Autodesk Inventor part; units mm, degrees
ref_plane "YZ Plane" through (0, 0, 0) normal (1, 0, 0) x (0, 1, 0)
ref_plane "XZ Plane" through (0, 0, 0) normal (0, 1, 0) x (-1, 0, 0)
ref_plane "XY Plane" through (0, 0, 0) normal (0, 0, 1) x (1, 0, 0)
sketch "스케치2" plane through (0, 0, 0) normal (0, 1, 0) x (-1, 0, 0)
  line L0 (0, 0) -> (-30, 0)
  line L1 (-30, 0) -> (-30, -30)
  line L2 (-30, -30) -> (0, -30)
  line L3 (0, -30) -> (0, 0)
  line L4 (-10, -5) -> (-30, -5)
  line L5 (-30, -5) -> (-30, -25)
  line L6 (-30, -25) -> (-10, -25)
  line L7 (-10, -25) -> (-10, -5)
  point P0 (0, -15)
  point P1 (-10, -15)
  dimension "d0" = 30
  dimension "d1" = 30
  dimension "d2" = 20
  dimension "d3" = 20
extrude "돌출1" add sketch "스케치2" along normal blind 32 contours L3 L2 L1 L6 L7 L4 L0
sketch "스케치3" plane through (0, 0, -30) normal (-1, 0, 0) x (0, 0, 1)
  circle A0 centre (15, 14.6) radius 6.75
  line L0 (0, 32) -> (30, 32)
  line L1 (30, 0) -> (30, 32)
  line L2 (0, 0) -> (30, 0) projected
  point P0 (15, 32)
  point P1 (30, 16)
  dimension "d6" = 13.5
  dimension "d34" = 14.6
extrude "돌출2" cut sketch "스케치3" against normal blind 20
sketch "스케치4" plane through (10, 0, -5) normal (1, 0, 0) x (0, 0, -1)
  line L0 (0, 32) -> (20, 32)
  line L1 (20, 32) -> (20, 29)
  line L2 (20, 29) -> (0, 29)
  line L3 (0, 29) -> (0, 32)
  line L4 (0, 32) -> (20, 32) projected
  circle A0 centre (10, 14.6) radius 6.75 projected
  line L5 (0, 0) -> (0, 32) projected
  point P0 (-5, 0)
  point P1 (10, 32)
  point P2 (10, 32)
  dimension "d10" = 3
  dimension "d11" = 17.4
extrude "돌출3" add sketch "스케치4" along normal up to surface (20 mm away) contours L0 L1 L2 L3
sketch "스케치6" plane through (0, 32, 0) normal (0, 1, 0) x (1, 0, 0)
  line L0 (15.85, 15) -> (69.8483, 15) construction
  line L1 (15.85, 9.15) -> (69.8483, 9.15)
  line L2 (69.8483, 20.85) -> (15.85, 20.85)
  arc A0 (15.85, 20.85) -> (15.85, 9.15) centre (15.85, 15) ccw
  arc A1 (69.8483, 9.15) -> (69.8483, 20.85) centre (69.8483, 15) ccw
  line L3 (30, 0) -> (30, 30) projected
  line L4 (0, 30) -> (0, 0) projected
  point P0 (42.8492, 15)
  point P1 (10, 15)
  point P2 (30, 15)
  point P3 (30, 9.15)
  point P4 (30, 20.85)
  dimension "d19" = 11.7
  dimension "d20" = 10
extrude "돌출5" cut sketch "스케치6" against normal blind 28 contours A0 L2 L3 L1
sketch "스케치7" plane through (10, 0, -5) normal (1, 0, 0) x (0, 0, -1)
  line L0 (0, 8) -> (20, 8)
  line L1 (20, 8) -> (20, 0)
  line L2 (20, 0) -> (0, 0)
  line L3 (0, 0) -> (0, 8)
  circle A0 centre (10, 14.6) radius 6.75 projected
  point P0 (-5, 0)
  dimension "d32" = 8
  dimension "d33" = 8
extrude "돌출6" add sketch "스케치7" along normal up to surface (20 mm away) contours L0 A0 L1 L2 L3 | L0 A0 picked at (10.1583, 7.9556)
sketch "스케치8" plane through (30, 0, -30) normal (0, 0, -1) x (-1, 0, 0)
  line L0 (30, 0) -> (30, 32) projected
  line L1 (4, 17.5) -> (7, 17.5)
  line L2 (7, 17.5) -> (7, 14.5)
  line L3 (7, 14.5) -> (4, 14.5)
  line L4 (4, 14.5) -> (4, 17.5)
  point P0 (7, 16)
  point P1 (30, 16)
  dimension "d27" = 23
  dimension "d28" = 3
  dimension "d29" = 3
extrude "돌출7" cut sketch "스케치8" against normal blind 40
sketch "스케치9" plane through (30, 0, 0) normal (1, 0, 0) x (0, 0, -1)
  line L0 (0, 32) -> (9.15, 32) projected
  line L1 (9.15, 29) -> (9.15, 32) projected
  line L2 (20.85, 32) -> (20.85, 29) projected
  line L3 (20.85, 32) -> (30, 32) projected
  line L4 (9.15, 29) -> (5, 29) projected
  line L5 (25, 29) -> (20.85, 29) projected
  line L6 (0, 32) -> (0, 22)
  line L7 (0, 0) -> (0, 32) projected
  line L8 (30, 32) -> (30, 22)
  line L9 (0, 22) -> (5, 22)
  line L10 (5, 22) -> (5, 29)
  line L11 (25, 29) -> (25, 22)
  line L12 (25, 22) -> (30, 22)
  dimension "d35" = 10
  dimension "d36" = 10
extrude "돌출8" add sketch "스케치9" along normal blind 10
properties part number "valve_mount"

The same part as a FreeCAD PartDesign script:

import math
import FreeCAD as App
import Part
import Sketcher

V = App.Vector


def add_polygon(sketch, points):
    """Adds a closed chain of lines whose ends are joined by coincident constraints."""
    first, n = sketch.GeometryCount, len(points)
    for a, b in zip(points, points[1:] + points[:1]):
        sketch.addGeometry(Part.LineSegment(App.Vector(*a, 0), App.Vector(*b, 0)), False)
    for i in range(n):
        sketch.addConstraint(Sketcher.Constraint("Coincident", first + i, 2, first + (i + 1) % n, 1))

doc = App.newDocument("Part")
body = doc.addObject("PartDesign::Body", "Body")

sketch1 = doc.addObject("Sketcher::SketchObject", "Sketch")
body.addObject(sketch1)
sketch1.AttachmentSupport = (doc.XZ_Plane, [""])
sketch1.MapMode = "FlatFace"
add_polygon(sketch1, [(0, -30), (0, 0), (30, 0), (30, -5), (10, -5), (10, -25), (30, -25), (30, -30)])
sketch1.addConstraint(Sketcher.Constraint("Vertical", 0))
sketch1.addConstraint(Sketcher.Constraint("Horizontal", 1))
sketch1.addConstraint(Sketcher.Constraint("Vertical", 2))
sketch1.addConstraint(Sketcher.Constraint("Horizontal", 3))
sketch1.addConstraint(Sketcher.Constraint("Vertical", 4))
sketch1.addConstraint(Sketcher.Constraint("Horizontal", 5))
sketch1.addConstraint(Sketcher.Constraint("Vertical", 6))
sketch1.addConstraint(Sketcher.Constraint("Horizontal", 7))
sketch1.addConstraint(Sketcher.Constraint("Coincident", 0, 2, -1, 1))
sketch1.addConstraint(Sketcher.Constraint("Vertical", 2, 2, 5, 2))
sketch1.addConstraint(Sketcher.Constraint("Equal", 7, 0))
sketch1.addConstraint(Sketcher.Constraint("Equal", 5, 4))
sketch1.addConstraint(Sketcher.Constraint("Equal", 2, 6))
sketch1.addConstraint(Sketcher.Constraint("DistanceX", 1, 1, 1, 2, 30.0))
sketch1.addConstraint(Sketcher.Constraint("DistanceX", 3, 2, 3, 1, 20.0))
pad1 = doc.addObject("PartDesign::Pad", "Pad")
body.addObject(pad1)
pad1.Profile = sketch1
pad1.Length = 32
pad1.Reversed = True

sketch2 = doc.addObject("Sketcher::SketchObject", "Sketch001")
body.addObject(sketch2)
sketch2.AttachmentSupport = (doc.YZ_Plane, [""])
sketch2.MapMode = "FlatFace"
sketch2.addGeometry(Part.Circle(V(15, -15, 0), V(0, 0, 1), 7), False)
sketch2.addConstraint(Sketcher.Constraint("Diameter", 0, 13.5))
sketch2.addConstraint(Sketcher.Constraint("DistanceX", -1, 1, 0, 3, 14.6))
sketch2.addConstraint(Sketcher.Constraint("DistanceY", 0, 3, -1, 1, 15.0))
pocket1 = doc.addObject("PartDesign::Pocket", "Pocket")
body.addObject(pocket1)
pocket1.Profile = sketch2
pocket1.Length = 20
pocket1.Reversed = True

sketch3 = doc.addObject("Sketcher::SketchObject", "Sketch002")
body.addObject(sketch3)
sketch3.AttachmentSupport = (doc.YZ_Plane, [""])
sketch3.MapMode = "FlatFace"
sketch3.AttachmentOffset = App.Placement(V(0, 0, 10), App.Rotation())
add_polygon(sketch3, [(32, -25), (32, -5), (29, -5), (29, -25)])
sketch3.addConstraint(Sketcher.Constraint("Vertical", 0))
sketch3.addConstraint(Sketcher.Constraint("Horizontal", 1))
sketch3.addConstraint(Sketcher.Constraint("Vertical", 2))
sketch3.addConstraint(Sketcher.Constraint("Horizontal", 3))
sketch3.addConstraint(Sketcher.Constraint("DistanceX", 1, 2, 1, 1, 3.0))
sketch3.addConstraint(Sketcher.Constraint("DistanceY", 0, 1, 0, 2, 20.0))
sketch3.addConstraint(Sketcher.Constraint("DistanceX", -1, 1, 0, 2, 32.0))
sketch3.addConstraint(Sketcher.Constraint("DistanceY", 0, 2, -1, 1, 5.0))
pad2 = doc.addObject("PartDesign::Pad", "Pad001")
body.addObject(pad2)
pad2.Profile = sketch3
pad2.Length = 20

sketch4 = doc.addObject("Sketcher::SketchObject", "Sketch003")
body.addObject(sketch4)
sketch4.AttachmentSupport = (doc.XZ_Plane, [""])
sketch4.MapMode = "FlatFace"
sketch4.AttachmentOffset = App.Placement(V(0, 0, -32), App.Rotation())
sketch4.addGeometry(Part.ArcOfCircle(Part.Circle(V(16, -15, 0), V(0, 0, 1), 6), math.radians(90), math.radians(270)), False)
sketch4.addGeometry(Part.LineSegment(V(16, -9, 0), V(30, -9, 0)), False)
sketch4.addGeometry(Part.LineSegment(V(30, -9, 0), V(30, -21, 0)), False)
sketch4.addGeometry(Part.LineSegment(V(30, -21, 0), V(16, -21, 0)), False)
sketch4.addConstraint(Sketcher.Constraint("Tangent", 0, 1, 1, 1))
sketch4.addConstraint(Sketcher.Constraint("Coincident", 1, 2, 2, 1))
sketch4.addConstraint(Sketcher.Constraint("Coincident", 2, 2, 3, 1))
sketch4.addConstraint(Sketcher.Constraint("Tangent", 3, 2, 0, 2))
sketch4.addConstraint(Sketcher.Constraint("Horizontal", 1))
sketch4.addConstraint(Sketcher.Constraint("Vertical", 2))
sketch4.addConstraint(Sketcher.Constraint("Horizontal", 3))
sketch4.addConstraint(Sketcher.Constraint("Radius", 0, 5.85))
sketch4.addConstraint(Sketcher.Constraint("DistanceY", 0, 3, -1, 1, 15.0))
sketch4.addConstraint(Sketcher.Constraint("DistanceX", -1, 1, 1, 2, 30.0))
sketch4.addConstraint(Sketcher.Constraint("DistanceX", 1, 1, 1, 2, 14.15))
pocket2 = doc.addObject("PartDesign::Pocket", "Pocket001")
body.addObject(pocket2)
pocket2.Profile = sketch4
pocket2.Length = 28
pocket2.Reversed = True

sketch5 = doc.addObject("Sketcher::SketchObject", "Sketch004")
body.addObject(sketch5)
sketch5.AttachmentSupport = (doc.YZ_Plane, [""])
sketch5.MapMode = "FlatFace"
sketch5.AttachmentOffset = App.Placement(V(0, 0, 10), App.Rotation())
add_polygon(sketch5, [(8, -5), (0, -5), (0, -25), (8, -25)])
sketch5.addConstraint(Sketcher.Constraint("Horizontal", 0))
sketch5.addConstraint(Sketcher.Constraint("Vertical", 1))
sketch5.addConstraint(Sketcher.Constraint("Horizontal", 2))
sketch5.addConstraint(Sketcher.Constraint("Vertical", 3))
sketch5.addConstraint(Sketcher.Constraint("PointOnObject", 0, 2, -2))
sketch5.addConstraint(Sketcher.Constraint("DistanceX", 0, 2, 0, 1, 8.0))
sketch5.addConstraint(Sketcher.Constraint("DistanceY", 1, 2, 1, 1, 20.0))
sketch5.addConstraint(Sketcher.Constraint("DistanceY", 0, 2, -1, 1, 5.0))
pad3 = doc.addObject("PartDesign::Pad", "Pad002")
body.addObject(pad3)
pad3.Profile = sketch5
pad3.Length = 20

sketch6 = doc.addObject("Sketcher::SketchObject", "Sketch005")
body.addObject(sketch6)
sketch6.AttachmentSupport = (doc.XY_Plane, [""])
sketch6.MapMode = "FlatFace"
sketch6.AttachmentOffset = App.Placement(V(0, 0, -30), App.Rotation())
add_polygon(sketch6, [(23, 17.5), (26, 17.5), (26, 14.5), (23, 14.5)])
sketch6.addConstraint(Sketcher.Constraint("Horizontal", 0))
sketch6.addConstraint(Sketcher.Constraint("Vertical", 1))
sketch6.addConstraint(Sketcher.Constraint("Horizontal", 2))
sketch6.addConstraint(Sketcher.Constraint("Vertical", 3))
sketch6.addConstraint(Sketcher.Constraint("Equal", 2, 1))
sketch6.addConstraint(Sketcher.Constraint("DistanceX", 0, 1, 0, 2, 3.0))
sketch6.addConstraint(Sketcher.Constraint("DistanceX", -1, 1, 2, 2, 23.0))
sketch6.addConstraint(Sketcher.Constraint("DistanceY", -1, 1, 0, 2, 17.5))
pocket3 = doc.addObject("PartDesign::Pocket", "Pocket002")
body.addObject(pocket3)
pocket3.Profile = sketch6
pocket3.Length = 40
pocket3.Reversed = True

sketch7 = doc.addObject("Sketcher::SketchObject", "Sketch006")
body.addObject(sketch7)
sketch7.AttachmentSupport = (doc.YZ_Plane, [""])
sketch7.MapMode = "FlatFace"
sketch7.AttachmentOffset = App.Placement(V(0, 0, 30), App.Rotation())
add_polygon(sketch7, [(32, -9.2), (32, 0), (22, 0), (22, -5), (29, -5), (29, -9.2)])
add_polygon(sketch7, [(32, -30), (32, -20.9), (29, -20.9), (29, -25), (22, -25), (22, -30)])
sketch7.addConstraint(Sketcher.Constraint("Vertical", 0))
sketch7.addConstraint(Sketcher.Constraint("Horizontal", 1))
sketch7.addConstraint(Sketcher.Constraint("Vertical", 2))
sketch7.addConstraint(Sketcher.Constraint("Horizontal", 3))
sketch7.addConstraint(Sketcher.Constraint("Vertical", 4))
sketch7.addConstraint(Sketcher.Constraint("Horizontal", 5))
sketch7.addConstraint(Sketcher.Constraint("Vertical", 6))
sketch7.addConstraint(Sketcher.Constraint("Horizontal", 7))
sketch7.addConstraint(Sketcher.Constraint("Vertical", 8))
sketch7.addConstraint(Sketcher.Constraint("Horizontal", 9))
sketch7.addConstraint(Sketcher.Constraint("Vertical", 10))
sketch7.addConstraint(Sketcher.Constraint("Horizontal", 11))
sketch7.addConstraint(Sketcher.Constraint("PointOnObject", 0, 2, -1))
sketch7.addConstraint(Sketcher.Constraint("Vertical", 5, 2, 6, 2))
sketch7.addConstraint(Sketcher.Constraint("Vertical", 4, 2, 7, 2))
sketch7.addConstraint(Sketcher.Constraint("Vertical", 2, 2, 9, 2))
sketch7.addConstraint(Sketcher.Constraint("Equal", 0, 6))
sketch7.addConstraint(Sketcher.Constraint("Equal", 4, 8))
sketch7.addConstraint(Sketcher.Constraint("DistanceX", 1, 2, 1, 1, 10.0))
sketch7.addConstraint(Sketcher.Constraint("DistanceX", 3, 1, 3, 2, 7.0))
sketch7.addConstraint(Sketcher.Constraint("DistanceY", 2, 2, 2, 1, 5.0))
sketch7.addConstraint(Sketcher.Constraint("DistanceX", -1, 1, 0, 2, 32.0))
sketch7.addConstraint(Sketcher.Constraint("DistanceY", 8, 2, -1, 1, 25.0))
sketch7.addConstraint(Sketcher.Constraint("DistanceY", 0, 1, 0, 2, 9.15))
pad4 = doc.addObject("PartDesign::Pad", "Pad003")
body.addObject(pad4)
pad4.Profile = sketch7
pad4.Length = 10

doc.recompute()
